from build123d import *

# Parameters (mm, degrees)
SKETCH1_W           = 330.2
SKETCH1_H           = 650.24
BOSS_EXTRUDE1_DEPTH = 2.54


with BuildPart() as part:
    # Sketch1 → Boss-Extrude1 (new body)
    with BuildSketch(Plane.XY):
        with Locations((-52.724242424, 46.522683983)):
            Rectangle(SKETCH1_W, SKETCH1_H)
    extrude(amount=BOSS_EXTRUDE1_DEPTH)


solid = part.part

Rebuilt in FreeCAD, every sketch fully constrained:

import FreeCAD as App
import Part
import Sketcher
Q = App.Units.Quantity

doc = App.newDocument("Part")
body = doc.addObject("PartDesign::Body", "Body")

# Sketch on XY plane
sketch1 = body.newObject("Sketcher::SketchObject", "Sketch")
sketch1.AttachmentSupport = (doc.getObject("XY_Plane"), [""])
sketch1.MapMode = "FlatFace"
sketch1.addGeometry([
    Part.LineSegment(App.Vector(-218, 372, 0), App.Vector(-218, -279, 0)),
    Part.LineSegment(App.Vector(-218, -279, 0), App.Vector(112, -279, 0)),
    Part.LineSegment(App.Vector(112, -279, 0), App.Vector(112, 372, 0)),
    Part.LineSegment(App.Vector(112, 372, 0), App.Vector(-218, 372, 0)),
], False)
sketch1.addConstraint([
    Sketcher.Constraint("Coincident", 0, 2, 1, 1),
    Sketcher.Constraint("Coincident", 1, 2, 2, 1),
    Sketcher.Constraint("Coincident", 2, 2, 3, 1),
    Sketcher.Constraint("Coincident", 3, 2, 0, 1),
    Sketcher.Constraint("Vertical", 0),
    Sketcher.Constraint("Horizontal", 1),
    Sketcher.Constraint("Vertical", 2),
    Sketcher.Constraint("Horizontal", 3),
    Sketcher.Constraint("DistanceX", 1, 1, 1, 2, Q("13 in")),
    Sketcher.Constraint("DistanceY", 0, 2, 0, 1, Q("25.6 in")),
    Sketcher.Constraint("DistanceX", 0, 2, -1, 1, Q("217.824242 mm")),
    Sketcher.Constraint("DistanceY", 0, 2, -1, 1, Q("278.597316 mm")),
])
pad1 = body.newObject("PartDesign::Pad", "Pad")
pad1.Profile = sketch1
pad1.Length = Q("0.1 in")

doc.recompute()
